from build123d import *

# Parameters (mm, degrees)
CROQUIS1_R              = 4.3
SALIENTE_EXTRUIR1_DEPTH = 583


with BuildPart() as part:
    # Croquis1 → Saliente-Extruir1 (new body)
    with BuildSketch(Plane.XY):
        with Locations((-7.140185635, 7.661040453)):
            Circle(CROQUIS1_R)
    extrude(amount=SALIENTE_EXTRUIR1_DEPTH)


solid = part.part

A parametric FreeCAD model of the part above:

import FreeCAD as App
import Part
import Sketcher

V = App.Vector
Q = App.Units.Quantity

doc = App.newDocument("Part")
body = doc.addObject("PartDesign::Body", "Body")

# Sketch on XY plane
sketch1 = body.newObject("Sketcher::SketchObject", "Sketch")
sketch1.AttachmentSupport = (doc.getObject("XY_Plane"), [""])
sketch1.MapMode = "FlatFace"
sketch1.addGeometry(Part.Circle(V(-7.1, 7.7, 0), V(0, 0, 1), 4.3), False)
sketch1.addConstraint(Sketcher.Constraint("Diameter", 0, Q("8.6 mm")))
sketch1.addConstraint(Sketcher.Constraint("DistanceY", -1, 1, 0, 3, Q("7.66104 mm")))
sketch1.addConstraint(Sketcher.Constraint("DistanceX", 0, 3, -1, 1, Q("7.140186 mm")))
pad1 = body.newObject("PartDesign::Pad", "Pad")
pad1.Profile = sketch1
pad1.Length = 583

doc.recompute()
